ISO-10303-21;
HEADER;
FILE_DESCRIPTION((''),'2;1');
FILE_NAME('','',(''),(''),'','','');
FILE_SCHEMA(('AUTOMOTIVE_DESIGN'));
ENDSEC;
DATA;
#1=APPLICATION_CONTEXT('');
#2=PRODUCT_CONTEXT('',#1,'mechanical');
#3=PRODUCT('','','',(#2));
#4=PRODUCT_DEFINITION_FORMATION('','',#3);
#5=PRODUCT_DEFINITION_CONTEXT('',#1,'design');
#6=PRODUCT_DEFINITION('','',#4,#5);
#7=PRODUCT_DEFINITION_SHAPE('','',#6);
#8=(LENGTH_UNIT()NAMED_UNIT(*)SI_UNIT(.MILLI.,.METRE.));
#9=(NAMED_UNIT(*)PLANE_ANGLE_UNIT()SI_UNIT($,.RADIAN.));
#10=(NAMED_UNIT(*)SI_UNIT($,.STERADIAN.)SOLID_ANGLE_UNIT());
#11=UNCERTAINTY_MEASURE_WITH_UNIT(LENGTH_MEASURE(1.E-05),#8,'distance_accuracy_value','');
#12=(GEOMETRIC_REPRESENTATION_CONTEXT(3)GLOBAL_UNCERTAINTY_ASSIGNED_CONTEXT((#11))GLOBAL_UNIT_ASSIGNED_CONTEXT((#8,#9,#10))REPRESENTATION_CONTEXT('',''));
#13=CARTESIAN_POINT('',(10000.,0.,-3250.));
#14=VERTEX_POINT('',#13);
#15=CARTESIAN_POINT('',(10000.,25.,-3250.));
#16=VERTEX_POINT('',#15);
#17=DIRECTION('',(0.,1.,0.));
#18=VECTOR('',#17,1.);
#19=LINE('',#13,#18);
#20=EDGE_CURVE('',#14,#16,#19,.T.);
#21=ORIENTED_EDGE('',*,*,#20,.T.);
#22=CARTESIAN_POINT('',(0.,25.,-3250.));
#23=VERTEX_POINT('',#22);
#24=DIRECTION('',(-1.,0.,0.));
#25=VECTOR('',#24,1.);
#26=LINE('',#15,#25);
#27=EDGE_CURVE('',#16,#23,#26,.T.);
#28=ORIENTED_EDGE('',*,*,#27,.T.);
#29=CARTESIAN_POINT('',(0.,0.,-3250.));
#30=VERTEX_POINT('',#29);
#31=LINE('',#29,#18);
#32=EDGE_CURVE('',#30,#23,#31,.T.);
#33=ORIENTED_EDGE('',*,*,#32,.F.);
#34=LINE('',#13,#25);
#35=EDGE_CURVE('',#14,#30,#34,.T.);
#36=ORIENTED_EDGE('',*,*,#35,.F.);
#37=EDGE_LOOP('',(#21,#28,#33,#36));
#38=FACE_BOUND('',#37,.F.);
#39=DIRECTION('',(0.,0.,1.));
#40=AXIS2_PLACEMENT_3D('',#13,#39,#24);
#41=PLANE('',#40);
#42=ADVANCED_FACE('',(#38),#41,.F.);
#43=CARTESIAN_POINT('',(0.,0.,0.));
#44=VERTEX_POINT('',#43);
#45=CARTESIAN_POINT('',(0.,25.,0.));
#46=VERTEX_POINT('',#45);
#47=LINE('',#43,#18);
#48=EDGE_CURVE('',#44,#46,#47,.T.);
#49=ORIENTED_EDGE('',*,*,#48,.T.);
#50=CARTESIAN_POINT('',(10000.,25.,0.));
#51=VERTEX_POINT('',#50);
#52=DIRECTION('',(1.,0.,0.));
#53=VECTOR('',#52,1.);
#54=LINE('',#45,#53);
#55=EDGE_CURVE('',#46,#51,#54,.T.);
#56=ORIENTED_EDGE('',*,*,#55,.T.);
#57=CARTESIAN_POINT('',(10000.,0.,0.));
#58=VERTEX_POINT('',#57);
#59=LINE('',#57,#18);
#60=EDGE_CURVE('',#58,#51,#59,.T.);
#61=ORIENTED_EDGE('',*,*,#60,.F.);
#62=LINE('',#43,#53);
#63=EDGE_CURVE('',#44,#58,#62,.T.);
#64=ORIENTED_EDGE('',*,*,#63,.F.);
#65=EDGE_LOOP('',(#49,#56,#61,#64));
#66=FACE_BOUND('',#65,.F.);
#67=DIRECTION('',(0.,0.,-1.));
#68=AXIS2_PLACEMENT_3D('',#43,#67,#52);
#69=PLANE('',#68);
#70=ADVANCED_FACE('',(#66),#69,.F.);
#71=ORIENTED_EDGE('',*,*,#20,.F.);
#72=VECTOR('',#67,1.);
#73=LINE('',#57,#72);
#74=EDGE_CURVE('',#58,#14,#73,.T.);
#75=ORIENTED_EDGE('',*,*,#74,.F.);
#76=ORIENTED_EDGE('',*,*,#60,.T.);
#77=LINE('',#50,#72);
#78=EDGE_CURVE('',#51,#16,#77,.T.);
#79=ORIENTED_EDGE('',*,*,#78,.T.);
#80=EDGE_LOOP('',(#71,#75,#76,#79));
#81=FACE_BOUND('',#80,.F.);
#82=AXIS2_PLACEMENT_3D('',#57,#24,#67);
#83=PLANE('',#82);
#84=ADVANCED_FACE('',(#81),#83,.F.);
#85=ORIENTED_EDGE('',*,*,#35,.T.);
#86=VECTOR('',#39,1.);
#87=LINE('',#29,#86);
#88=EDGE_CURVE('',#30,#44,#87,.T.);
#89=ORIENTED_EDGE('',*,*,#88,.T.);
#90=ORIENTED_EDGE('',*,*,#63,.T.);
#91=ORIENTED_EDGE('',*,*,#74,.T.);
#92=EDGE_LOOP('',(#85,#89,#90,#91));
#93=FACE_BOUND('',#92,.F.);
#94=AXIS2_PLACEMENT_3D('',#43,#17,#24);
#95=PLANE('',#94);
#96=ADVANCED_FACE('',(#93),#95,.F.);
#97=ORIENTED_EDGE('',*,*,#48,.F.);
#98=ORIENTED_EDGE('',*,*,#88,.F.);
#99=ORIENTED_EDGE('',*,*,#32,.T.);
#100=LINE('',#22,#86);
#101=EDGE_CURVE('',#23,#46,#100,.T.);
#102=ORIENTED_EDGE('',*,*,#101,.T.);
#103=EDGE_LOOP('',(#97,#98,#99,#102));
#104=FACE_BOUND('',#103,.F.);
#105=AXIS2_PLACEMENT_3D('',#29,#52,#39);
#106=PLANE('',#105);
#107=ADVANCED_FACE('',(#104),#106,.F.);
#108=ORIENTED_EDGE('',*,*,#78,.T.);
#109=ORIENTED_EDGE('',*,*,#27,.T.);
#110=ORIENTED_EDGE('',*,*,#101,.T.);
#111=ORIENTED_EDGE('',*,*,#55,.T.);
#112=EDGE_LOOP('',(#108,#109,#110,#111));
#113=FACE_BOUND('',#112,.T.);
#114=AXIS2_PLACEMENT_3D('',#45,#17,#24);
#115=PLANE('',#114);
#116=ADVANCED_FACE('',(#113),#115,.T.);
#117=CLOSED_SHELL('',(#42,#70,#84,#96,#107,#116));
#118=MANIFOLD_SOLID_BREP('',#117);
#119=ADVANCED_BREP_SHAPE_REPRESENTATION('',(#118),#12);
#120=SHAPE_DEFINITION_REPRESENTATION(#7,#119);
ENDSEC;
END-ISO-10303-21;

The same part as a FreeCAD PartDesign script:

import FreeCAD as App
import Part
import Sketcher
Q = App.Units.Quantity

doc = App.newDocument("Part")
body = doc.addObject("PartDesign::Body", "Body")

sketch1 = doc.addObject("Sketcher::SketchObject", "Sketch")
body.addObject(sketch1)
sketch1.AttachmentSupport = (doc.XZ_Plane, [""])
sketch1.MapMode = "FlatFace"
sketch1.addGeometry([
    Part.LineSegment(App.Vector(0, -3250, 0), App.Vector(0, 0, 0)),
    Part.LineSegment(App.Vector(0, 0, 0), App.Vector(10000, 0, 0)),
    Part.LineSegment(App.Vector(10000, 0, 0), App.Vector(10000, -3250, 0)),
    Part.LineSegment(App.Vector(10000, -3250, 0), App.Vector(0, -3250, 0)),
], False)
sketch1.addConstraint([
    Sketcher.Constraint("Coincident", 0, 2, 1, 1),
    Sketcher.Constraint("Coincident", 1, 2, 2, 1),
    Sketcher.Constraint("Coincident", 2, 2, 3, 1),
    Sketcher.Constraint("Coincident", 3, 2, 0, 1),
    Sketcher.Constraint("Vertical", 0),
    Sketcher.Constraint("Horizontal", 1),
    Sketcher.Constraint("Vertical", 2),
    Sketcher.Constraint("Horizontal", 3),
    Sketcher.Constraint("Coincident", 0, 2, -1, 1),
    Sketcher.Constraint("DistanceX", 1, 1, 1, 2, Q("10000 mm")),
    Sketcher.Constraint("DistanceY", 0, 1, 0, 2, Q("3250 mm")),
])
pad1 = doc.addObject("PartDesign::Pad", "Pad")
body.addObject(pad1)
pad1.Profile = sketch1
pad1.Length = 25
pad1.Reversed = True

doc.recompute()
